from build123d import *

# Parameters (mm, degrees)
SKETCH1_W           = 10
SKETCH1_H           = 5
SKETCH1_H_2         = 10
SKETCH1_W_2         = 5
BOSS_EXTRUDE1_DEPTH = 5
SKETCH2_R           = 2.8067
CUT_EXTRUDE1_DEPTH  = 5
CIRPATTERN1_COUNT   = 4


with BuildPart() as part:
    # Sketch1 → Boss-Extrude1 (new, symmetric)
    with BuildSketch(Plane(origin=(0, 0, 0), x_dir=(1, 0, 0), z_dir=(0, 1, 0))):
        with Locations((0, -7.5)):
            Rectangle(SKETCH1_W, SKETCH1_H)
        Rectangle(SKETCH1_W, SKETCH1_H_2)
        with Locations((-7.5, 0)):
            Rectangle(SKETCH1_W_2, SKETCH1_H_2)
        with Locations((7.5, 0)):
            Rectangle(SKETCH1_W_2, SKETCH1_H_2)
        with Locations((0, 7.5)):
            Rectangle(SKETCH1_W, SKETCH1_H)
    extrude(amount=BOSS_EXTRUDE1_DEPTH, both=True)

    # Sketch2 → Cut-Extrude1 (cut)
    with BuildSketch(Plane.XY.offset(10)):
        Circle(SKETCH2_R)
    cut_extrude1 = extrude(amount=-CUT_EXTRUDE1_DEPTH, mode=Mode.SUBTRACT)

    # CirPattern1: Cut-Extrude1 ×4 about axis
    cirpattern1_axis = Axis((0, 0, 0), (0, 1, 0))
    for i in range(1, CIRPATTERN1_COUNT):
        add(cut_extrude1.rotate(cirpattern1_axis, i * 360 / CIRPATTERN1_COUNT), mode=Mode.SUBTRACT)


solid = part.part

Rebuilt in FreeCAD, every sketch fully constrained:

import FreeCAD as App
import Part
import Sketcher
Q = App.Units.Quantity

doc = App.newDocument("Part")
body = doc.addObject("PartDesign::Body", "Body")

sketch1 = body.newObject("Sketcher::SketchObject", "Sketch")
sketch1.AttachmentSupport = (doc.getObject("XZ_Plane"), [""])
sketch1.MapMode = "FlatFace"
sketch1.addGeometry(Part.LineSegment(App.Vector(-5, 10, 0), App.Vector(5, 10, 0)), False)
sketch1.addGeometry(Part.LineSegment(App.Vector(5, 10, 0), App.Vector(5, 5, 0)), False)
sketch1.addGeometry(Part.LineSegment(App.Vector(5, 5, 0), App.Vector(10, 5, 0)), False)
sketch1.addGeometry(Part.LineSegment(App.Vector(10, 5, 0), App.Vector(10, -5, 0)), False)
sketch1.addGeometry(Part.LineSegment(App.Vector(10, -5, 0), App.Vector(5, -5, 0)), False)
sketch1.addGeometry(Part.LineSegment(App.Vector(5, -5, 0), App.Vector(5, -10, 0)), False)
sketch1.addGeometry(Part.LineSegment(App.Vector(5, -10, 0), App.Vector(-5, -10, 0)), False)
sketch1.addGeometry(Part.LineSegment(App.Vector(-5, -10, 0), App.Vector(-5, -5, 0)), False)
sketch1.addGeometry(Part.LineSegment(App.Vector(-5, -5, 0), App.Vector(-10, -5, 0)), False)
sketch1.addGeometry(Part.LineSegment(App.Vector(-10, -5, 0), App.Vector(-10, 5, 0)), False)
sketch1.addGeometry(Part.LineSegment(App.Vector(-10, 5, 0), App.Vector(-5, 5, 0)), False)
sketch1.addGeometry(Part.LineSegment(App.Vector(-5, 5, 0), App.Vector(-5, 10, 0)), False)
sketch1.addConstraint(Sketcher.Constraint("Coincident", 0, 2, 1, 1))
sketch1.addConstraint(Sketcher.Constraint("Coincident", 1, 2, 2, 1))
sketch1.addConstraint(Sketcher.Constraint("Coincident", 2, 2, 3, 1))
sketch1.addConstraint(Sketcher.Constraint("Coincident", 3, 2, 4, 1))
sketch1.addConstraint(Sketcher.Constraint("Coincident", 4, 2, 5, 1))
sketch1.addConstraint(Sketcher.Constraint("Coincident", 5, 2, 6, 1))
sketch1.addConstraint(Sketcher.Constraint("Coincident", 6, 2, 7, 1))
sketch1.addConstraint(Sketcher.Constraint("Coincident", 7, 2, 8, 1))
sketch1.addConstraint(Sketcher.Constraint("Coincident", 8, 2, 9, 1))
sketch1.addConstraint(Sketcher.Constraint("Coincident", 9, 2, 10, 1))
sketch1.addConstraint(Sketcher.Constraint("Coincident", 10, 2, 11, 1))
sketch1.addConstraint(Sketcher.Constraint("Coincident", 11, 2, 0, 1))
sketch1.addConstraint(Sketcher.Constraint("Horizontal", 0))
sketch1.addConstraint(Sketcher.Constraint("Vertical", 1))
sketch1.addConstraint(Sketcher.Constraint("Horizontal", 2))
sketch1.addConstraint(Sketcher.Constraint("Vertical", 3))
sketch1.addConstraint(Sketcher.Constraint("Horizontal", 4))
sketch1.addConstraint(Sketcher.Constraint("Vertical", 5))
sketch1.addConstraint(Sketcher.Constraint("Horizontal", 6))
sketch1.addConstraint(Sketcher.Constraint("Vertical", 7))
sketch1.addConstraint(Sketcher.Constraint("Horizontal", 8))
sketch1.addConstraint(Sketcher.Constraint("Vertical", 9))
sketch1.addConstraint(Sketcher.Constraint("Horizontal", 10))
sketch1.addConstraint(Sketcher.Constraint("Vertical", 11))
sketch1.addConstraint(Sketcher.Constraint("Symmetric", 0, 2, 6, 2, -1, 1))
sketch1.addConstraint(Sketcher.Constraint("Symmetric", 2, 2, 8, 2, -1, 1))
sketch1.addConstraint(Sketcher.Constraint("Symmetric", 4, 2, 10, 2, -1, 1))
sketch1.addConstraint(Sketcher.Constraint("Symmetric", 4, 2, 7, 2, -2))
sketch1.addConstraint(Sketcher.Constraint("Equal", 10, 1))
sketch1.addConstraint(Sketcher.Constraint("Equal", 6, 3))
sketch1.addConstraint(Sketcher.Constraint("DistanceX", 0, 1, 0, 2, Q("10 mm")))
sketch1.addConstraint(Sketcher.Constraint("DistanceX", 2, 1, 2, 2, Q("5 mm")))
pad1 = body.newObject("PartDesign::Pad", "Pad")
pad1.Profile = sketch1
pad1.Length = 10
pad1.Midplane = True

sketch2 = body.newObject("Sketcher::SketchObject", "Sketch001")
sketch2.AttachmentSupport = (doc.getObject("XY_Plane"), [""])
sketch2.MapMode = "FlatFace"
sketch2.AttachmentOffset = App.Placement(App.Vector(0, 0, 10), App.Rotation())
sketch2.addGeometry(Part.Circle(App.Vector(0, 0, 0), App.Vector(0, 0, 1), 2.8), False)
sketch2.addConstraint(Sketcher.Constraint("Coincident", 0, 3, -1, 1))
sketch2.addConstraint(Sketcher.Constraint("Diameter", 0, Q("5.6134 mm")))
pocket1 = body.newObject("PartDesign::Pocket", "Pocket")
pocket1.Profile = sketch2
pocket1.Length = 5
doc.recompute()

polarpattern = body.newObject("PartDesign::PolarPattern", "PolarPattern")
polarpattern.Originals = [pocket1]
polarpattern.Axis = (doc.getObject("Y_Axis"), [""])
polarpattern.Angle = 360
polarpattern.Occurrences = 4
body.Tip = polarpattern

doc.recompute()
